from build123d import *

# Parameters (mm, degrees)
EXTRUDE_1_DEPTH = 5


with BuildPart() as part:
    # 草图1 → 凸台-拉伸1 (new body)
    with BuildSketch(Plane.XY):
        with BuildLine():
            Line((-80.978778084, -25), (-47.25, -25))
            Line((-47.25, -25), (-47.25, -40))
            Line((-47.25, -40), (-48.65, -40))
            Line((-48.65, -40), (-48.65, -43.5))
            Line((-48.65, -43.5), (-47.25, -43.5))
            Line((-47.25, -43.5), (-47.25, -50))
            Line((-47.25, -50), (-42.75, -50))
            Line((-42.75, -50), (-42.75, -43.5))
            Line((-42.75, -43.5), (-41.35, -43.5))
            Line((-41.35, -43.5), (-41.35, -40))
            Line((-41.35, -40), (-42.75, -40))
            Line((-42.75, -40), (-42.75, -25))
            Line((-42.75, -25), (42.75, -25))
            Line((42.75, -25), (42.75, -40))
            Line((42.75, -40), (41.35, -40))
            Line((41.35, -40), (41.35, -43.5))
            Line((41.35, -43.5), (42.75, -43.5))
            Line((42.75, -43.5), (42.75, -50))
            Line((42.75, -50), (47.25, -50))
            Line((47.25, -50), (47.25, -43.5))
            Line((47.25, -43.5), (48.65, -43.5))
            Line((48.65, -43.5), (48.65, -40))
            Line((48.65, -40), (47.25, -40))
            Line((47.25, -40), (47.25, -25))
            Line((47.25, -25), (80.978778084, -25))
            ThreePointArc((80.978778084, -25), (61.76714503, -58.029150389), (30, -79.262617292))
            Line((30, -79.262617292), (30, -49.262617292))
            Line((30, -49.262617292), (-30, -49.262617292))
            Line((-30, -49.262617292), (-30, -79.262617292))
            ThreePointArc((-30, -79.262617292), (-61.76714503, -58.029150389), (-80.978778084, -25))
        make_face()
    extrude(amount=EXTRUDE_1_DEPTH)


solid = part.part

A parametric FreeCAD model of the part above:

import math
import FreeCAD as App
import Part
import Sketcher

V = App.Vector
Q = App.Units.Quantity

doc = App.newDocument("Part")
body = doc.addObject("PartDesign::Body", "Body")

# Sketch on XY plane
sketch1 = body.newObject("Sketcher::SketchObject", "Sketch")
sketch1.AttachmentSupport = (doc.getObject("XY_Plane"), [""])
sketch1.MapMode = "FlatFace"
sketch1.addGeometry(Part.LineSegment(V(-47.2, -25, 0), V(-81, -25, 0)), False)
sketch1.addGeometry(Part.ArcOfCircle(Part.Circle(V(0, 0, 0), V(0, 0, 1), 84.7), math.radians(-163), math.radians(-111)), False)
sketch1.addGeometry(Part.LineSegment(V(-30, -79.3, 0), V(-30, -49.3, 0)), False)
sketch1.addGeometry(Part.LineSegment(V(-30, -49.3, 0), V(30, -49.3, 0)), False)
sketch1.addGeometry(Part.LineSegment(V(30, -49.3, 0), V(30, -79.3, 0)), False)
sketch1.addGeometry(Part.ArcOfCircle(Part.Circle(V(0, 0, 0), V(0, 0, 1), 84.7), math.radians(-69), math.radians(-17)), False)
sketch1.addGeometry(Part.LineSegment(V(81, -25, 0), V(47.2, -25, 0)), False)
sketch1.addGeometry(Part.LineSegment(V(47.2, -25, 0), V(47.2, -40, 0)), False)
sketch1.addGeometry(Part.LineSegment(V(47.2, -40, 0), V(48.6, -40, 0)), False)
sketch1.addGeometry(Part.LineSegment(V(48.6, -40, 0), V(48.6, -43.5, 0)), False)
sketch1.addGeometry(Part.LineSegment(V(48.6, -43.5, 0), V(47.2, -43.5, 0)), False)
sketch1.addGeometry(Part.LineSegment(V(47.2, -43.5, 0), V(47.2, -50, 0)), False)
sketch1.addGeometry(Part.LineSegment(V(47.2, -50, 0), V(42.8, -50, 0)), False)
sketch1.addGeometry(Part.LineSegment(V(42.8, -50, 0), V(42.8, -43.5, 0)), False)
sketch1.addGeometry(Part.LineSegment(V(42.8, -43.5, 0), V(41.4, -43.5, 0)), False)
sketch1.addGeometry(Part.LineSegment(V(41.4, -43.5, 0), V(41.4, -40, 0)), False)
sketch1.addGeometry(Part.LineSegment(V(41.4, -40, 0), V(42.8, -40, 0)), False)
sketch1.addGeometry(Part.LineSegment(V(42.8, -40, 0), V(42.8, -25, 0)), False)
sketch1.addGeometry(Part.LineSegment(V(42.8, -25, 0), V(-42.8, -25, 0)), False)
sketch1.addGeometry(Part.LineSegment(V(-42.8, -25, 0), V(-42.8, -40, 0)), False)
sketch1.addGeometry(Part.LineSegment(V(-42.8, -40, 0), V(-41.4, -40, 0)), False)
sketch1.addGeometry(Part.LineSegment(V(-41.4, -40, 0), V(-41.4, -43.5, 0)), False)
sketch1.addGeometry(Part.LineSegment(V(-41.4, -43.5, 0), V(-42.8, -43.5, 0)), False)
sketch1.addGeometry(Part.LineSegment(V(-42.8, -43.5, 0), V(-42.8, -50, 0)), False)
sketch1.addGeometry(Part.LineSegment(V(-42.8, -50, 0), V(-47.2, -50, 0)), False)
sketch1.addGeometry(Part.LineSegment(V(-47.2, -50, 0), V(-47.2, -43.5, 0)), False)
sketch1.addGeometry(Part.LineSegment(V(-47.2, -43.5, 0), V(-48.6, -43.5, 0)), False)
sketch1.addGeometry(Part.LineSegment(V(-48.6, -43.5, 0), V(-48.6, -40, 0)), False)
sketch1.addGeometry(Part.LineSegment(V(-48.6, -40, 0), V(-47.2, -40, 0)), False)
sketch1.addGeometry(Part.LineSegment(V(-47.2, -40, 0), V(-47.2, -25, 0)), False)
sketch1.addConstraint(Sketcher.Constraint("Coincident", 0, 2, 1, 1))
sketch1.addConstraint(Sketcher.Constraint("Coincident", 1, 2, 2, 1))
sketch1.addConstraint(Sketcher.Constraint("Coincident", 2, 2, 3, 1))
sketch1.addConstraint(Sketcher.Constraint("Coincident", 3, 2, 4, 1))
sketch1.addConstraint(Sketcher.Constraint("Coincident", 4, 2, 5, 1))
sketch1.addConstraint(Sketcher.Constraint("Coincident", 5, 2, 6, 1))
sketch1.addConstraint(Sketcher.Constraint("Coincident", 6, 2, 7, 1))
sketch1.addConstraint(Sketcher.Constraint("Coincident", 7, 2, 8, 1))
sketch1.addConstraint(Sketcher.Constraint("Coincident", 8, 2, 9, 1))
sketch1.addConstraint(Sketcher.Constraint("Coincident", 9, 2, 10, 1))
sketch1.addConstraint(Sketcher.Constraint("Coincident", 10, 2, 11, 1))
sketch1.addConstraint(Sketcher.Constraint("Coincident", 11, 2, 12, 1))
sketch1.addConstraint(Sketcher.Constraint("Coincident", 12, 2, 13, 1))
sketch1.addConstraint(Sketcher.Constraint("Coincident", 13, 2, 14, 1))
sketch1.addConstraint(Sketcher.Constraint("Coincident", 14, 2, 15, 1))
sketch1.addConstraint(Sketcher.Constraint("Coincident", 15, 2, 16, 1))
sketch1.addConstraint(Sketcher.Constraint("Coincident", 16, 2, 17, 1))
sketch1.addConstraint(Sketcher.Constraint("Coincident", 17, 2, 18, 1))
sketch1.addConstraint(Sketcher.Constraint("Coincident", 18, 2, 19, 1))
sketch1.addConstraint(Sketcher.Constraint("Coincident", 19, 2, 20, 1))
sketch1.addConstraint(Sketcher.Constraint("Coincident", 20, 2, 21, 1))
sketch1.addConstraint(Sketcher.Constraint("Coincident", 21, 2, 22, 1))
sketch1.addConstraint(Sketcher.Constraint("Coincident", 22, 2, 23, 1))
sketch1.addConstraint(Sketcher.Constraint("Coincident", 23, 2, 24, 1))
sketch1.addConstraint(Sketcher.Constraint("Coincident", 24, 2, 25, 1))
sketch1.addConstraint(Sketcher.Constraint("Coincident", 25, 2, 26, 1))
sketch1.addConstraint(Sketcher.Constraint("Coincident", 26, 2, 27, 1))
sketch1.addConstraint(Sketcher.Constraint("Coincident", 27, 2, 28, 1))
sketch1.addConstraint(Sketcher.Constraint("Coincident", 28, 2, 29, 1))
sketch1.addConstraint(Sketcher.Constraint("Coincident", 29, 2, 0, 1))
sketch1.addConstraint(Sketcher.Constraint("Horizontal", 0))
sketch1.addConstraint(Sketcher.Constraint("Vertical", 2))
sketch1.addConstraint(Sketcher.Constraint("Horizontal", 3))
sketch1.addConstraint(Sketcher.Constraint("Vertical", 4))
sketch1.addConstraint(Sketcher.Constraint("Horizontal", 6))
sketch1.addConstraint(Sketcher.Constraint("Vertical", 7))
sketch1.addConstraint(Sketcher.Constraint("Horizontal", 8))
sketch1.addConstraint(Sketcher.Constraint("Vertical", 9))
sketch1.addConstraint(Sketcher.Constraint("Horizontal", 10))
sketch1.addConstraint(Sketcher.Constraint("Vertical", 11))
sketch1.addConstraint(Sketcher.Constraint("Horizontal", 12))
sketch1.addConstraint(Sketcher.Constraint("Vertical", 13))
sketch1.addConstraint(Sketcher.Constraint("Horizontal", 14))
sketch1.addConstraint(Sketcher.Constraint("Vertical", 15))
sketch1.addConstraint(Sketcher.Constraint("Horizontal", 16))
sketch1.addConstraint(Sketcher.Constraint("Vertical", 17))
sketch1.addConstraint(Sketcher.Constraint("Horizontal", 18))
sketch1.addConstraint(Sketcher.Constraint("Vertical", 19))
sketch1.addConstraint(Sketcher.Constraint("Horizontal", 20))
sketch1.addConstraint(Sketcher.Constraint("Vertical", 21))
sketch1.addConstraint(Sketcher.Constraint("Horizontal", 22))
sketch1.addConstraint(Sketcher.Constraint("Vertical", 23))
sketch1.addConstraint(Sketcher.Constraint("Horizontal", 24))
sketch1.addConstraint(Sketcher.Constraint("Vertical", 25))
sketch1.addConstraint(Sketcher.Constraint("Horizontal", 26))
sketch1.addConstraint(Sketcher.Constraint("Vertical", 27))
sketch1.addConstraint(Sketcher.Constraint("Horizontal", 28))
sketch1.addConstraint(Sketcher.Constraint("Vertical", 29))
sketch1.addConstraint(Sketcher.Constraint("Coincident", 1, 3, -1, 1))
sketch1.addConstraint(Sketcher.Constraint("Coincident", 5, 3, -1, 1))
sketch1.addConstraint(Sketcher.Constraint("Equal", 1, 5))
sketch1.addConstraint(Sketcher.Constraint("Symmetric", 16, 2, 19, 2, -2))
sketch1.addConstraint(Sketcher.Constraint("Symmetric", 14, 2, 21, 2, -2))
sketch1.addConstraint(Sketcher.Constraint("Symmetric", 12, 2, 23, 2, -2))
sketch1.addConstraint(Sketcher.Constraint("Symmetric", 10, 2, 25, 2, -2))
sketch1.addConstraint(Sketcher.Constraint("Symmetric", 8, 2, 27, 2, -2))
sketch1.addConstraint(Sketcher.Constraint("Symmetric", 6, 2, 29, 2, -2))
sketch1.addConstraint(Sketcher.Constraint("Horizontal", 1, 2, 4, 2))
sketch1.addConstraint(Sketcher.Constraint("Horizontal", 10, 2, 13, 2))
sketch1.addConstraint(Sketcher.Constraint("Horizontal", 8, 2, 15, 2))
sketch1.addConstraint(Sketcher.Constraint("Horizontal", 6, 2, 17, 2))
sketch1.addConstraint(Sketcher.Constraint("Vertical", 7, 2, 10, 2))
sketch1.addConstraint(Sketcher.Constraint("Vertical", 13, 2, 16, 2))
sketch1.addConstraint(Sketcher.Constraint("Equal", 10, 14))
sketch1.addConstraint(Sketcher.Constraint("DistanceX", 3, 1, 3, 2, Q("60 mm")))
sketch1.addConstraint(Sketcher.Constraint("DistanceY", 2, 1, 2, 2, Q("30 mm")))
sketch1.addConstraint(Sketcher.Constraint("DistanceY", 7, 2, 7, 1, Q("15 mm")))
sketch1.addConstraint(Sketcher.Constraint("Radius", 1, Q("84.75 mm")))
sketch1.addConstraint(Sketcher.Constraint("DistanceX", 8, 1, 8, 2, Q("1.4 mm")))
sketch1.addConstraint(Sketcher.Constraint("DistanceX", 12, 2, 12, 1, Q("4.5 mm")))
sketch1.addConstraint(Sketcher.Constraint("DistanceX", 18, 2, 18, 1, Q("85.5 mm")))
sketch1.addConstraint(Sketcher.Constraint("DistanceY", 9, 2, 9, 1, Q("3.5 mm")))
sketch1.addConstraint(Sketcher.Constraint("DistanceY", 11, 2, 11, 1, Q("6.5 mm")))
sketch1.addConstraint(Sketcher.Constraint("DistanceY", 0, 2, -1, 1, Q("25 mm")))
pad1 = body.newObject("PartDesign::Pad", "Pad")
pad1.Profile = sketch1
pad1.Length = 5

doc.recompute()
